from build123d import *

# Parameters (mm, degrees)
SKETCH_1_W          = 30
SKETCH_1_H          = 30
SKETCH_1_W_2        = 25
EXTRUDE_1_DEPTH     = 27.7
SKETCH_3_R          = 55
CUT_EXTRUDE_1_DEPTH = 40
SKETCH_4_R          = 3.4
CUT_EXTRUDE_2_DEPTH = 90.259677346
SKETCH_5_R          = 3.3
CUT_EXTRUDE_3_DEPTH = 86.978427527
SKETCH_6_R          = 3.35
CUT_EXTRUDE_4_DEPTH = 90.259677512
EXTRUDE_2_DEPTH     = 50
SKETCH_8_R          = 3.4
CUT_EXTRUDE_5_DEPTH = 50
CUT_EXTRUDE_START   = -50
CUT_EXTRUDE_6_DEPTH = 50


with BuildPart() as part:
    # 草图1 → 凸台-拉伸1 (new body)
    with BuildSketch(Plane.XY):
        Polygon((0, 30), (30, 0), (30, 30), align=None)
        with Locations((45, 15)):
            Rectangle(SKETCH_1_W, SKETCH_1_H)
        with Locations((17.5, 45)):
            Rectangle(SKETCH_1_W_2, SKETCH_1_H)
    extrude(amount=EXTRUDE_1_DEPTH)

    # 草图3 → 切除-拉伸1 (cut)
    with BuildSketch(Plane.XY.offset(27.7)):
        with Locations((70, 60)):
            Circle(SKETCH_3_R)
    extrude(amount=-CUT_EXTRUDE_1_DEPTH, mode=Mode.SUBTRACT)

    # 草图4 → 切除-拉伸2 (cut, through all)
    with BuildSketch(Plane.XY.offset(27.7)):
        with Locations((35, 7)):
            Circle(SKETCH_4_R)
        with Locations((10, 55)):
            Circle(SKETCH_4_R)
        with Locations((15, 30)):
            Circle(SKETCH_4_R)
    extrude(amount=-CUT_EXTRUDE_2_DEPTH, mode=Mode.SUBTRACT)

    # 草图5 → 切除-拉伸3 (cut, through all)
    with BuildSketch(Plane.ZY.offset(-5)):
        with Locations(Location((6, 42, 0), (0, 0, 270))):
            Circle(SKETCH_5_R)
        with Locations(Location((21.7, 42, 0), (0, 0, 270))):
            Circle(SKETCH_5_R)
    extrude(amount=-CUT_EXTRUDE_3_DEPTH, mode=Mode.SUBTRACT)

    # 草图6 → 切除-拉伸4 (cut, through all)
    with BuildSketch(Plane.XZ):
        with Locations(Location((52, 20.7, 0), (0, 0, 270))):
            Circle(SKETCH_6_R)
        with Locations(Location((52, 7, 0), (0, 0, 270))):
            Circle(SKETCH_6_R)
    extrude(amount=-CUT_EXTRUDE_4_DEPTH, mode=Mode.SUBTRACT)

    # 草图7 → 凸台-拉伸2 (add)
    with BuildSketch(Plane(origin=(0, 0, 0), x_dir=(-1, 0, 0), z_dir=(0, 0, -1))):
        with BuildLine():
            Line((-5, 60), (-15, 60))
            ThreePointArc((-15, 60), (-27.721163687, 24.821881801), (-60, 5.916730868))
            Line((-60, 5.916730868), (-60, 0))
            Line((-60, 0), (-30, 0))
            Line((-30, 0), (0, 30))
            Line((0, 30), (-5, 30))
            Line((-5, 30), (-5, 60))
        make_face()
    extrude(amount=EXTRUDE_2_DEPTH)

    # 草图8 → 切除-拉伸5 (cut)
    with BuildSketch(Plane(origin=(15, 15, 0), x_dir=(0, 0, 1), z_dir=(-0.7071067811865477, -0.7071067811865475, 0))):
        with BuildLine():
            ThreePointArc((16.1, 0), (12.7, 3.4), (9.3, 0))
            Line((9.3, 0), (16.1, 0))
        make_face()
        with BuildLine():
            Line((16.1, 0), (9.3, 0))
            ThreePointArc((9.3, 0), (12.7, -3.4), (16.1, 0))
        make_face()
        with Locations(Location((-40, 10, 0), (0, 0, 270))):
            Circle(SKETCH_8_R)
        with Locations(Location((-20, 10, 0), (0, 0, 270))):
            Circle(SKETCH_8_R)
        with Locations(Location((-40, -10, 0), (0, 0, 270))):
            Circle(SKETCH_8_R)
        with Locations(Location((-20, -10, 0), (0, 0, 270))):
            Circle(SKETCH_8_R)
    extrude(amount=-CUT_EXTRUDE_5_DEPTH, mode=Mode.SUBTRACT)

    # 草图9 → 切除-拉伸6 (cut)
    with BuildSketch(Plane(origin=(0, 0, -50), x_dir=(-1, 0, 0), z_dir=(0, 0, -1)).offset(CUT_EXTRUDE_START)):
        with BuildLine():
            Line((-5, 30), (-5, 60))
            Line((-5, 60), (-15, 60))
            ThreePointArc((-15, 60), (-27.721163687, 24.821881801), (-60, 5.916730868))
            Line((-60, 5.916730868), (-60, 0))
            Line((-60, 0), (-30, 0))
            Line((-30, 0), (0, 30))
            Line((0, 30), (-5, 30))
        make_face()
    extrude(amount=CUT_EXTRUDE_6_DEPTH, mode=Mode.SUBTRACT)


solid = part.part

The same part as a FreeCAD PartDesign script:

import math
import FreeCAD as App
import Part
import Sketcher

V = App.Vector
Q = App.Units.Quantity

doc = App.newDocument("Part")
params = doc.addObject("Spreadsheet::Sheet", "Params")
for row, (alias, value) in enumerate([
    ("sketch1_width", "30 mm"),
    ("sketch1_width2", "25 mm"),
    ("sketch1_width3", "5 mm"),
    ("pad1_length", "27.7 mm"),
    ("sketch2_diameter", "110 mm"),
    ("pocket1_length", "40 mm"),
    ("sketch3_diameter", "6.8 mm"),
    ("sketch4_diameter", "6.6 mm"),
    ("sketch5_diameter", "6.7 mm"),
    ("sketch6_radius", "55 mm"),
    ("sketch6_width", "10 mm"),
    ("sketch6_width2", "30 mm"),
    ("sketch6_width3", "5 mm"),
    ("pad2_length", "50 mm"),
    ("sketch7_diameter", "6.8 mm"),
    ("pocket5_length", "50 mm"),
    ("sketch8_radius", "55 mm"),
    ("sketch8_width", "10 mm"),
    ("sketch8_width2", "30 mm"),
    ("sketch8_width3", "5 mm"),
    ("pocket6_length", "50 mm"),
], start=1):
    params.set(f"A{row}", alias)
    params.set(f"B{row}", "=" + value)
    params.setAlias(f"B{row}", alias)

body = doc.addObject("PartDesign::Body", "Body")

# Sketch on XY plane
sketch1 = body.newObject("Sketcher::SketchObject", "Sketch")
sketch1.AttachmentSupport = (doc.getObject("XY_Plane"), [""])
sketch1.MapMode = "FlatFace"
sketch1.addGeometry(Part.LineSegment(V(0, 30, 0), V(30, 0, 0)), False)
sketch1.addGeometry(Part.LineSegment(V(30, 0, 0), V(60, 0, 0)), False)
sketch1.addGeometry(Part.LineSegment(V(60, 0, 0), V(60, 30, 0)), False)
sketch1.addGeometry(Part.LineSegment(V(60, 30, 0), V(30, 30, 0)), False)
sketch1.addGeometry(Part.LineSegment(V(30, 30, 0), V(30, 60, 0)), False)
sketch1.addGeometry(Part.LineSegment(V(30, 60, 0), V(5, 60, 0)), False)
sketch1.addGeometry(Part.LineSegment(V(5, 60, 0), V(5, 30, 0)), False)
sketch1.addGeometry(Part.LineSegment(V(5, 30, 0), V(0, 30, 0)), False)
sketch1.addConstraint(Sketcher.Constraint("Coincident", 0, 2, 1, 1))
sketch1.addConstraint(Sketcher.Constraint("Coincident", 1, 2, 2, 1))
sketch1.addConstraint(Sketcher.Constraint("Coincident", 2, 2, 3, 1))
sketch1.addConstraint(Sketcher.Constraint("Coincident", 3, 2, 4, 1))
sketch1.addConstraint(Sketcher.Constraint("Coincident", 4, 2, 5, 1))
sketch1.addConstraint(Sketcher.Constraint("Coincident", 5, 2, 6, 1))
sketch1.addConstraint(Sketcher.Constraint("Coincident", 6, 2, 7, 1))
sketch1.addConstraint(Sketcher.Constraint("Coincident", 7, 2, 0, 1))
sketch1.addConstraint(Sketcher.Constraint("Horizontal", 1))
sketch1.addConstraint(Sketcher.Constraint("Vertical", 2))
sketch1.addConstraint(Sketcher.Constraint("Horizontal", 3))
sketch1.addConstraint(Sketcher.Constraint("Vertical", 4))
sketch1.addConstraint(Sketcher.Constraint("Horizontal", 5))
sketch1.addConstraint(Sketcher.Constraint("Vertical", 6))
sketch1.addConstraint(Sketcher.Constraint("Horizontal", 7))
sketch1.addConstraint(Sketcher.Constraint("PointOnObject", 0, 2, -1))
sketch1.addConstraint(Sketcher.Constraint("PointOnObject", 7, 2, -2))
sketch1.addConstraint(Sketcher.Constraint("Horizontal", 3, 2, 6, 2))
sketch1.addConstraint(Sketcher.Constraint("Vertical", 0, 2, 3, 2))
sketch1.addConstraint(Sketcher.Constraint("Equal", 3, 2))
sketch1.addConstraint(Sketcher.Constraint("Equal", 2, 4))
sketch1.addConstraint(Sketcher.Constraint("DistanceX", 1, 1, 1, 2, 30.0))
sketch1.addConstraint(Sketcher.Constraint("DistanceX", 5, 2, 5, 1, 25.0))
sketch1.addConstraint(Sketcher.Constraint("DistanceX", 7, 2, 7, 1, 5.0))
sketch1.setExpression("Constraints[21]", "Params.sketch1_width")
sketch1.setExpression("Constraints[22]", "Params.sketch1_width2")
sketch1.setExpression("Constraints[23]", "Params.sketch1_width3")
pad1 = body.newObject("PartDesign::Pad", "Pad")
pad1.Profile = sketch1
pad1.setExpression("Length", "Params.pad1_length")

# Sketch on XY plane
sketch2 = body.newObject("Sketcher::SketchObject", "Sketch001")
sketch2.AttachmentSupport = (doc.getObject("XY_Plane"), [""])
sketch2.MapMode = "FlatFace"
sketch2.AttachmentOffset = App.Placement(V(0, 0, 27.7), App.Rotation())
sketch2.addGeometry(Part.Circle(V(70, 60, 0), V(0, 0, 1), 55), False)
sketch2.addConstraint(Sketcher.Constraint("Diameter", 0, 110.0))
sketch2.addConstraint(Sketcher.Constraint("DistanceX", -1, 1, 0, 3, 70.0))
sketch2.addConstraint(Sketcher.Constraint("DistanceY", -1, 1, 0, 3, 60.0))
sketch2.setExpression("Constraints[0]", "Params.sketch2_diameter")
pocket1 = body.newObject("PartDesign::Pocket", "Pocket")
pocket1.Profile = sketch2
pocket1.setExpression("Length", "Params.pocket1_length")

# Sketch on XY plane
sketch3 = body.newObject("Sketcher::SketchObject", "Sketch002")
sketch3.AttachmentSupport = (doc.getObject("XY_Plane"), [""])
sketch3.MapMode = "FlatFace"
sketch3.AttachmentOffset = App.Placement(V(0, 0, 27.7), App.Rotation())
sketch3.addGeometry(Part.Circle(V(35, 7, 0), V(0, 0, 1), 3.4), False)
sketch3.addGeometry(Part.Circle(V(10, 55, 0), V(0, 0, 1), 3.4), False)
sketch3.addGeometry(Part.Circle(V(15, 30, 0), V(0, 0, 1), 3.4), False)
sketch3.addConstraint(Sketcher.Constraint("Equal", 0, 1))
sketch3.addConstraint(Sketcher.Constraint("Equal", 1, 2))
sketch3.addConstraint(Sketcher.Constraint("Diameter", 0, 6.8))
sketch3.addConstraint(Sketcher.Constraint("DistanceX", -1, 1, 0, 3, 35.0))
sketch3.addConstraint(Sketcher.Constraint("DistanceY", -1, 1, 0, 3, 7.0))
sketch3.addConstraint(Sketcher.Constraint("DistanceX", -1, 1, 1, 3, 10.0))
sketch3.addConstraint(Sketcher.Constraint("DistanceY", -1, 1, 1, 3, 55.0))
sketch3.addConstraint(Sketcher.Constraint("DistanceX", -1, 1, 2, 3, 15.0))
sketch3.addConstraint(Sketcher.Constraint("DistanceY", -1, 1, 2, 3, 30.0))
sketch3.setExpression("Constraints[2]", "Params.sketch3_diameter")
pocket2 = body.newObject("PartDesign::Pocket", "Pocket001")
pocket2.Profile = sketch3
pocket2.Type = "ThroughAll"

# Sketch on YZ plane
sketch4 = body.newObject("Sketcher::SketchObject", "Sketch003")
sketch4.AttachmentSupport = (doc.getObject("YZ_Plane"), [""])
sketch4.MapMode = "FlatFace"
sketch4.AttachmentOffset = App.Placement(V(0, 0, 5), App.Rotation())
sketch4.addGeometry(Part.Circle(V(42, 6, 0), V(0, 0, 1), 3.3), False)
sketch4.addGeometry(Part.Circle(V(42, 21.7, 0), V(0, 0, 1), 3.3), False)
sketch4.addConstraint(Sketcher.Constraint("Equal", 0, 1))
sketch4.addConstraint(Sketcher.Constraint("Vertical", 0, 3, 1, 3))
sketch4.addConstraint(Sketcher.Constraint("Diameter", 0, 6.6))
sketch4.addConstraint(Sketcher.Constraint("DistanceX", -1, 1, 0, 3, 42.0))
sketch4.addConstraint(Sketcher.Constraint("DistanceY", -1, 1, 0, 3, 6.0))
sketch4.addConstraint(Sketcher.Constraint("DistanceY", -1, 1, 1, 3, 21.7))
sketch4.setExpression("Constraints[2]", "Params.sketch4_diameter")
pocket3 = body.newObject("PartDesign::Pocket", "Pocket002")
pocket3.Profile = sketch4
pocket3.Type = "ThroughAll"
pocket3.Reversed = True

# Sketch on XZ plane
sketch5 = body.newObject("Sketcher::SketchObject", "Sketch004")
sketch5.AttachmentSupport = (doc.getObject("XZ_Plane"), [""])
sketch5.MapMode = "FlatFace"
sketch5.addGeometry(Part.Circle(V(52, 20.7, 0), V(0, 0, 1), 3.4), False)
sketch5.addGeometry(Part.Circle(V(52, 7, 0), V(0, 0, 1), 3.4), False)
sketch5.addConstraint(Sketcher.Constraint("Equal", 0, 1))
sketch5.addConstraint(Sketcher.Constraint("Vertical", 0, 3, 1, 3))
sketch5.addConstraint(Sketcher.Constraint("Diameter", 0, 6.7))
sketch5.addConstraint(Sketcher.Constraint("DistanceX", -1, 1, 0, 3, 52.0))
sketch5.addConstraint(Sketcher.Constraint("DistanceY", -1, 1, 1, 3, 7.0))
sketch5.addConstraint(Sketcher.Constraint("DistanceY", -1, 1, 0, 3, 20.7))
sketch5.setExpression("Constraints[2]", "Params.sketch5_diameter")
pocket4 = body.newObject("PartDesign::Pocket", "Pocket003")
pocket4.Profile = sketch5
pocket4.Type = "ThroughAll"

# Sketch on XY plane
sketch6 = body.newObject("Sketcher::SketchObject", "Sketch005")
sketch6.AttachmentSupport = (doc.getObject("XY_Plane"), [""])
sketch6.MapMode = "FlatFace"
sketch6.addGeometry(Part.LineSegment(V(5, 60, 0), V(15, 60, 0)), False)
sketch6.addGeometry(Part.ArcOfCircle(Part.Circle(V(70, 60, 0), V(0, 0, 1), 55), math.radians(180), math.radians(260)), False)
sketch6.addGeometry(Part.LineSegment(V(60, 6, 0), V(60, 0, 0)), False)
sketch6.addGeometry(Part.LineSegment(V(60, 0, 0), V(30, 0, 0)), False)
sketch6.addGeometry(Part.LineSegment(V(30, 0, 0), V(0, 30, 0)), False)
sketch6.addGeometry(Part.LineSegment(V(0, 30, 0), V(5, 30, 0)), False)
sketch6.addGeometry(Part.LineSegment(V(5, 30, 0), V(5, 60, 0)), False)
sketch6.addConstraint(Sketcher.Constraint("Coincident", 0, 2, 1, 1))
sketch6.addConstraint(Sketcher.Constraint("Coincident", 1, 2, 2, 1))
sketch6.addConstraint(Sketcher.Constraint("Coincident", 2, 2, 3, 1))
sketch6.addConstraint(Sketcher.Constraint("Coincident", 3, 2, 4, 1))
sketch6.addConstraint(Sketcher.Constraint("Coincident", 4, 2, 5, 1))
sketch6.addConstraint(Sketcher.Constraint("Coincident", 5, 2, 6, 1))
sketch6.addConstraint(Sketcher.Constraint("Coincident", 6, 2, 0, 1))
sketch6.addConstraint(Sketcher.Constraint("Horizontal", 0))
sketch6.addConstraint(Sketcher.Constraint("Vertical", 2))
sketch6.addConstraint(Sketcher.Constraint("Horizontal", 3))
sketch6.addConstraint(Sketcher.Constraint("Horizontal", 5))
sketch6.addConstraint(Sketcher.Constraint("Vertical", 6))
sketch6.addConstraint(Sketcher.Constraint("PointOnObject", 2, 2, -1))
sketch6.addConstraint(Sketcher.Constraint("PointOnObject", 4, 2, -2))
sketch6.addConstraint(Sketcher.Constraint("Horizontal", 1, 3, 0, 2))
sketch6.addConstraint(Sketcher.Constraint("Equal", 3, 6))
sketch6.addConstraint(Sketcher.Constraint("Radius", 1, 55.0))
sketch6.addConstraint(Sketcher.Constraint("DistanceX", 0, 1, 0, 2, 10.0))
sketch6.addConstraint(Sketcher.Constraint("DistanceX", 3, 2, 3, 1, 30.0))
sketch6.addConstraint(Sketcher.Constraint("DistanceX", 5, 1, 5, 2, 5.0))
sketch6.addConstraint(Sketcher.Constraint("Angle", 4, Q("135 deg")))
sketch6.addConstraint(Sketcher.Constraint("DistanceY", -1, 1, 1, 3, 60.0))
sketch6.setExpression("Constraints[16]", "Params.sketch6_radius")
sketch6.setExpression("Constraints[17]", "Params.sketch6_width")
sketch6.setExpression("Constraints[18]", "Params.sketch6_width2")
sketch6.setExpression("Constraints[19]", "Params.sketch6_width3")
pad2 = body.newObject("PartDesign::Pad", "Pad001")
pad2.Profile = sketch6
pad2.setExpression("Length", "Params.pad2_length")
pad2.Reversed = True

# Sketch on an angled plane
sketch7 = body.newObject("Sketcher::SketchObject", "Sketch006")
sketch7.Placement = App.Placement(V(15, 15, 0), App.Rotation(V(0, 0, 1), V(-0.707106781, 0.707106781, 0), V(-0.707106781, -0.707106781, 0), "ZXY"))
sketch7.addGeometry(Part.Circle(V(12.7, 0, 0), V(0, 0, 1), 3.4), False)
sketch7.addGeometry(Part.Circle(V(-40, 10, 0), V(0, 0, 1), 3.4), False)
sketch7.addGeometry(Part.Circle(V(-20, 10, 0), V(0, 0, 1), 3.4), False)
sketch7.addGeometry(Part.Circle(V(-40, -10, 0), V(0, 0, 1), 3.4), False)
sketch7.addGeometry(Part.Circle(V(-20, -10, 0), V(0, 0, 1), 3.4), False)
sketch7.addConstraint(Sketcher.Constraint("Equal", 0, 1))
sketch7.addConstraint(Sketcher.Constraint("Equal", 1, 2))
sketch7.addConstraint(Sketcher.Constraint("Equal", 2, 3))
sketch7.addConstraint(Sketcher.Constraint("Equal", 3, 4))
sketch7.addConstraint(Sketcher.Constraint("Symmetric", 1, 3, 3, 3, -1))
sketch7.addConstraint(Sketcher.Constraint("Symmetric", 2, 3, 4, 3, -1))
sketch7.addConstraint(Sketcher.Constraint("PointOnObject", 0, 3, -1))
sketch7.addConstraint(Sketcher.Constraint("Horizontal", 1, 3, 2, 3))
sketch7.addConstraint(Sketcher.Constraint("Diameter", 0, 6.8))
sketch7.addConstraint(Sketcher.Constraint("DistanceX", 1, 3, -1, 1, 40.0))
sketch7.addConstraint(Sketcher.Constraint("DistanceY", -1, 1, 1, 3, 10.0))
sketch7.addConstraint(Sketcher.Constraint("DistanceX", 2, 3, -1, 1, 20.0))
sketch7.addConstraint(Sketcher.Constraint("DistanceX", -1, 1, 0, 3, 12.7))
sketch7.setExpression("Constraints[8]", "Params.sketch7_diameter")
pocket5 = body.newObject("PartDesign::Pocket", "Pocket004")
pocket5.Profile = sketch7
pocket5.setExpression("Length", "Params.pocket5_length")

# Sketch on XY plane
sketch8 = body.newObject("Sketcher::SketchObject", "Sketch007")
sketch8.AttachmentSupport = (doc.getObject("XY_Plane"), [""])
sketch8.MapMode = "FlatFace"
sketch8.addGeometry(Part.LineSegment(V(5, 30, 0), V(5, 60, 0)), False)
sketch8.addGeometry(Part.LineSegment(V(5, 60, 0), V(15, 60, 0)), False)
sketch8.addGeometry(Part.ArcOfCircle(Part.Circle(V(70, 60, 0), V(0, 0, 1), 55), math.radians(180), math.radians(260)), False)
sketch8.addGeometry(Part.LineSegment(V(60, 6, 0), V(60, 0, 0)), False)
sketch8.addGeometry(Part.LineSegment(V(60, 0, 0), V(30, 0, 0)), False)
sketch8.addGeometry(Part.LineSegment(V(30, 0, 0), V(0, 30, 0)), False)
sketch8.addGeometry(Part.LineSegment(V(0, 30, 0), V(5, 30, 0)), False)
sketch8.addConstraint(Sketcher.Constraint("Coincident", 0, 2, 1, 1))
sketch8.addConstraint(Sketcher.Constraint("Coincident", 1, 2, 2, 1))
sketch8.addConstraint(Sketcher.Constraint("Coincident", 2, 2, 3, 1))
sketch8.addConstraint(Sketcher.Constraint("Coincident", 3, 2, 4, 1))
sketch8.addConstraint(Sketcher.Constraint("Coincident", 4, 2, 5, 1))
sketch8.addConstraint(Sketcher.Constraint("Coincident", 5, 2, 6, 1))
sketch8.addConstraint(Sketcher.Constraint("Coincident", 6, 2, 0, 1))
sketch8.addConstraint(Sketcher.Constraint("Vertical", 0))
sketch8.addConstraint(Sketcher.Constraint("Horizontal", 1))
sketch8.addConstraint(Sketcher.Constraint("Vertical", 3))
sketch8.addConstraint(Sketcher.Constraint("Horizontal", 4))
sketch8.addConstraint(Sketcher.Constraint("Horizontal", 6))
sketch8.addConstraint(Sketcher.Constraint("PointOnObject", 3, 2, -1))
sketch8.addConstraint(Sketcher.Constraint("PointOnObject", 5, 2, -2))
sketch8.addConstraint(Sketcher.Constraint("Horizontal", 2, 3, 0, 2))
sketch8.addConstraint(Sketcher.Constraint("Equal", 4, 0))
sketch8.addConstraint(Sketcher.Constraint("Radius", 2, 55.0))
sketch8.addConstraint(Sketcher.Constraint("DistanceX", 1, 1, 1, 2, 10.0))
sketch8.addConstraint(Sketcher.Constraint("DistanceX", 4, 2, 4, 1, 30.0))
sketch8.addConstraint(Sketcher.Constraint("DistanceX", 6, 1, 6, 2, 5.0))
sketch8.addConstraint(Sketcher.Constraint("Angle", 5, Q("135 deg")))
sketch8.addConstraint(Sketcher.Constraint("DistanceY", -1, 1, 2, 3, 60.0))
sketch8.setExpression("Constraints[16]", "Params.sketch8_radius")
sketch8.setExpression("Constraints[17]", "Params.sketch8_width")
sketch8.setExpression("Constraints[18]", "Params.sketch8_width2")
sketch8.setExpression("Constraints[19]", "Params.sketch8_width3")
pocket6 = body.newObject("PartDesign::Pocket", "Pocket005")
pocket6.Profile = sketch8
pocket6.setExpression("Length", "Params.pocket6_length")

doc.recompute()
